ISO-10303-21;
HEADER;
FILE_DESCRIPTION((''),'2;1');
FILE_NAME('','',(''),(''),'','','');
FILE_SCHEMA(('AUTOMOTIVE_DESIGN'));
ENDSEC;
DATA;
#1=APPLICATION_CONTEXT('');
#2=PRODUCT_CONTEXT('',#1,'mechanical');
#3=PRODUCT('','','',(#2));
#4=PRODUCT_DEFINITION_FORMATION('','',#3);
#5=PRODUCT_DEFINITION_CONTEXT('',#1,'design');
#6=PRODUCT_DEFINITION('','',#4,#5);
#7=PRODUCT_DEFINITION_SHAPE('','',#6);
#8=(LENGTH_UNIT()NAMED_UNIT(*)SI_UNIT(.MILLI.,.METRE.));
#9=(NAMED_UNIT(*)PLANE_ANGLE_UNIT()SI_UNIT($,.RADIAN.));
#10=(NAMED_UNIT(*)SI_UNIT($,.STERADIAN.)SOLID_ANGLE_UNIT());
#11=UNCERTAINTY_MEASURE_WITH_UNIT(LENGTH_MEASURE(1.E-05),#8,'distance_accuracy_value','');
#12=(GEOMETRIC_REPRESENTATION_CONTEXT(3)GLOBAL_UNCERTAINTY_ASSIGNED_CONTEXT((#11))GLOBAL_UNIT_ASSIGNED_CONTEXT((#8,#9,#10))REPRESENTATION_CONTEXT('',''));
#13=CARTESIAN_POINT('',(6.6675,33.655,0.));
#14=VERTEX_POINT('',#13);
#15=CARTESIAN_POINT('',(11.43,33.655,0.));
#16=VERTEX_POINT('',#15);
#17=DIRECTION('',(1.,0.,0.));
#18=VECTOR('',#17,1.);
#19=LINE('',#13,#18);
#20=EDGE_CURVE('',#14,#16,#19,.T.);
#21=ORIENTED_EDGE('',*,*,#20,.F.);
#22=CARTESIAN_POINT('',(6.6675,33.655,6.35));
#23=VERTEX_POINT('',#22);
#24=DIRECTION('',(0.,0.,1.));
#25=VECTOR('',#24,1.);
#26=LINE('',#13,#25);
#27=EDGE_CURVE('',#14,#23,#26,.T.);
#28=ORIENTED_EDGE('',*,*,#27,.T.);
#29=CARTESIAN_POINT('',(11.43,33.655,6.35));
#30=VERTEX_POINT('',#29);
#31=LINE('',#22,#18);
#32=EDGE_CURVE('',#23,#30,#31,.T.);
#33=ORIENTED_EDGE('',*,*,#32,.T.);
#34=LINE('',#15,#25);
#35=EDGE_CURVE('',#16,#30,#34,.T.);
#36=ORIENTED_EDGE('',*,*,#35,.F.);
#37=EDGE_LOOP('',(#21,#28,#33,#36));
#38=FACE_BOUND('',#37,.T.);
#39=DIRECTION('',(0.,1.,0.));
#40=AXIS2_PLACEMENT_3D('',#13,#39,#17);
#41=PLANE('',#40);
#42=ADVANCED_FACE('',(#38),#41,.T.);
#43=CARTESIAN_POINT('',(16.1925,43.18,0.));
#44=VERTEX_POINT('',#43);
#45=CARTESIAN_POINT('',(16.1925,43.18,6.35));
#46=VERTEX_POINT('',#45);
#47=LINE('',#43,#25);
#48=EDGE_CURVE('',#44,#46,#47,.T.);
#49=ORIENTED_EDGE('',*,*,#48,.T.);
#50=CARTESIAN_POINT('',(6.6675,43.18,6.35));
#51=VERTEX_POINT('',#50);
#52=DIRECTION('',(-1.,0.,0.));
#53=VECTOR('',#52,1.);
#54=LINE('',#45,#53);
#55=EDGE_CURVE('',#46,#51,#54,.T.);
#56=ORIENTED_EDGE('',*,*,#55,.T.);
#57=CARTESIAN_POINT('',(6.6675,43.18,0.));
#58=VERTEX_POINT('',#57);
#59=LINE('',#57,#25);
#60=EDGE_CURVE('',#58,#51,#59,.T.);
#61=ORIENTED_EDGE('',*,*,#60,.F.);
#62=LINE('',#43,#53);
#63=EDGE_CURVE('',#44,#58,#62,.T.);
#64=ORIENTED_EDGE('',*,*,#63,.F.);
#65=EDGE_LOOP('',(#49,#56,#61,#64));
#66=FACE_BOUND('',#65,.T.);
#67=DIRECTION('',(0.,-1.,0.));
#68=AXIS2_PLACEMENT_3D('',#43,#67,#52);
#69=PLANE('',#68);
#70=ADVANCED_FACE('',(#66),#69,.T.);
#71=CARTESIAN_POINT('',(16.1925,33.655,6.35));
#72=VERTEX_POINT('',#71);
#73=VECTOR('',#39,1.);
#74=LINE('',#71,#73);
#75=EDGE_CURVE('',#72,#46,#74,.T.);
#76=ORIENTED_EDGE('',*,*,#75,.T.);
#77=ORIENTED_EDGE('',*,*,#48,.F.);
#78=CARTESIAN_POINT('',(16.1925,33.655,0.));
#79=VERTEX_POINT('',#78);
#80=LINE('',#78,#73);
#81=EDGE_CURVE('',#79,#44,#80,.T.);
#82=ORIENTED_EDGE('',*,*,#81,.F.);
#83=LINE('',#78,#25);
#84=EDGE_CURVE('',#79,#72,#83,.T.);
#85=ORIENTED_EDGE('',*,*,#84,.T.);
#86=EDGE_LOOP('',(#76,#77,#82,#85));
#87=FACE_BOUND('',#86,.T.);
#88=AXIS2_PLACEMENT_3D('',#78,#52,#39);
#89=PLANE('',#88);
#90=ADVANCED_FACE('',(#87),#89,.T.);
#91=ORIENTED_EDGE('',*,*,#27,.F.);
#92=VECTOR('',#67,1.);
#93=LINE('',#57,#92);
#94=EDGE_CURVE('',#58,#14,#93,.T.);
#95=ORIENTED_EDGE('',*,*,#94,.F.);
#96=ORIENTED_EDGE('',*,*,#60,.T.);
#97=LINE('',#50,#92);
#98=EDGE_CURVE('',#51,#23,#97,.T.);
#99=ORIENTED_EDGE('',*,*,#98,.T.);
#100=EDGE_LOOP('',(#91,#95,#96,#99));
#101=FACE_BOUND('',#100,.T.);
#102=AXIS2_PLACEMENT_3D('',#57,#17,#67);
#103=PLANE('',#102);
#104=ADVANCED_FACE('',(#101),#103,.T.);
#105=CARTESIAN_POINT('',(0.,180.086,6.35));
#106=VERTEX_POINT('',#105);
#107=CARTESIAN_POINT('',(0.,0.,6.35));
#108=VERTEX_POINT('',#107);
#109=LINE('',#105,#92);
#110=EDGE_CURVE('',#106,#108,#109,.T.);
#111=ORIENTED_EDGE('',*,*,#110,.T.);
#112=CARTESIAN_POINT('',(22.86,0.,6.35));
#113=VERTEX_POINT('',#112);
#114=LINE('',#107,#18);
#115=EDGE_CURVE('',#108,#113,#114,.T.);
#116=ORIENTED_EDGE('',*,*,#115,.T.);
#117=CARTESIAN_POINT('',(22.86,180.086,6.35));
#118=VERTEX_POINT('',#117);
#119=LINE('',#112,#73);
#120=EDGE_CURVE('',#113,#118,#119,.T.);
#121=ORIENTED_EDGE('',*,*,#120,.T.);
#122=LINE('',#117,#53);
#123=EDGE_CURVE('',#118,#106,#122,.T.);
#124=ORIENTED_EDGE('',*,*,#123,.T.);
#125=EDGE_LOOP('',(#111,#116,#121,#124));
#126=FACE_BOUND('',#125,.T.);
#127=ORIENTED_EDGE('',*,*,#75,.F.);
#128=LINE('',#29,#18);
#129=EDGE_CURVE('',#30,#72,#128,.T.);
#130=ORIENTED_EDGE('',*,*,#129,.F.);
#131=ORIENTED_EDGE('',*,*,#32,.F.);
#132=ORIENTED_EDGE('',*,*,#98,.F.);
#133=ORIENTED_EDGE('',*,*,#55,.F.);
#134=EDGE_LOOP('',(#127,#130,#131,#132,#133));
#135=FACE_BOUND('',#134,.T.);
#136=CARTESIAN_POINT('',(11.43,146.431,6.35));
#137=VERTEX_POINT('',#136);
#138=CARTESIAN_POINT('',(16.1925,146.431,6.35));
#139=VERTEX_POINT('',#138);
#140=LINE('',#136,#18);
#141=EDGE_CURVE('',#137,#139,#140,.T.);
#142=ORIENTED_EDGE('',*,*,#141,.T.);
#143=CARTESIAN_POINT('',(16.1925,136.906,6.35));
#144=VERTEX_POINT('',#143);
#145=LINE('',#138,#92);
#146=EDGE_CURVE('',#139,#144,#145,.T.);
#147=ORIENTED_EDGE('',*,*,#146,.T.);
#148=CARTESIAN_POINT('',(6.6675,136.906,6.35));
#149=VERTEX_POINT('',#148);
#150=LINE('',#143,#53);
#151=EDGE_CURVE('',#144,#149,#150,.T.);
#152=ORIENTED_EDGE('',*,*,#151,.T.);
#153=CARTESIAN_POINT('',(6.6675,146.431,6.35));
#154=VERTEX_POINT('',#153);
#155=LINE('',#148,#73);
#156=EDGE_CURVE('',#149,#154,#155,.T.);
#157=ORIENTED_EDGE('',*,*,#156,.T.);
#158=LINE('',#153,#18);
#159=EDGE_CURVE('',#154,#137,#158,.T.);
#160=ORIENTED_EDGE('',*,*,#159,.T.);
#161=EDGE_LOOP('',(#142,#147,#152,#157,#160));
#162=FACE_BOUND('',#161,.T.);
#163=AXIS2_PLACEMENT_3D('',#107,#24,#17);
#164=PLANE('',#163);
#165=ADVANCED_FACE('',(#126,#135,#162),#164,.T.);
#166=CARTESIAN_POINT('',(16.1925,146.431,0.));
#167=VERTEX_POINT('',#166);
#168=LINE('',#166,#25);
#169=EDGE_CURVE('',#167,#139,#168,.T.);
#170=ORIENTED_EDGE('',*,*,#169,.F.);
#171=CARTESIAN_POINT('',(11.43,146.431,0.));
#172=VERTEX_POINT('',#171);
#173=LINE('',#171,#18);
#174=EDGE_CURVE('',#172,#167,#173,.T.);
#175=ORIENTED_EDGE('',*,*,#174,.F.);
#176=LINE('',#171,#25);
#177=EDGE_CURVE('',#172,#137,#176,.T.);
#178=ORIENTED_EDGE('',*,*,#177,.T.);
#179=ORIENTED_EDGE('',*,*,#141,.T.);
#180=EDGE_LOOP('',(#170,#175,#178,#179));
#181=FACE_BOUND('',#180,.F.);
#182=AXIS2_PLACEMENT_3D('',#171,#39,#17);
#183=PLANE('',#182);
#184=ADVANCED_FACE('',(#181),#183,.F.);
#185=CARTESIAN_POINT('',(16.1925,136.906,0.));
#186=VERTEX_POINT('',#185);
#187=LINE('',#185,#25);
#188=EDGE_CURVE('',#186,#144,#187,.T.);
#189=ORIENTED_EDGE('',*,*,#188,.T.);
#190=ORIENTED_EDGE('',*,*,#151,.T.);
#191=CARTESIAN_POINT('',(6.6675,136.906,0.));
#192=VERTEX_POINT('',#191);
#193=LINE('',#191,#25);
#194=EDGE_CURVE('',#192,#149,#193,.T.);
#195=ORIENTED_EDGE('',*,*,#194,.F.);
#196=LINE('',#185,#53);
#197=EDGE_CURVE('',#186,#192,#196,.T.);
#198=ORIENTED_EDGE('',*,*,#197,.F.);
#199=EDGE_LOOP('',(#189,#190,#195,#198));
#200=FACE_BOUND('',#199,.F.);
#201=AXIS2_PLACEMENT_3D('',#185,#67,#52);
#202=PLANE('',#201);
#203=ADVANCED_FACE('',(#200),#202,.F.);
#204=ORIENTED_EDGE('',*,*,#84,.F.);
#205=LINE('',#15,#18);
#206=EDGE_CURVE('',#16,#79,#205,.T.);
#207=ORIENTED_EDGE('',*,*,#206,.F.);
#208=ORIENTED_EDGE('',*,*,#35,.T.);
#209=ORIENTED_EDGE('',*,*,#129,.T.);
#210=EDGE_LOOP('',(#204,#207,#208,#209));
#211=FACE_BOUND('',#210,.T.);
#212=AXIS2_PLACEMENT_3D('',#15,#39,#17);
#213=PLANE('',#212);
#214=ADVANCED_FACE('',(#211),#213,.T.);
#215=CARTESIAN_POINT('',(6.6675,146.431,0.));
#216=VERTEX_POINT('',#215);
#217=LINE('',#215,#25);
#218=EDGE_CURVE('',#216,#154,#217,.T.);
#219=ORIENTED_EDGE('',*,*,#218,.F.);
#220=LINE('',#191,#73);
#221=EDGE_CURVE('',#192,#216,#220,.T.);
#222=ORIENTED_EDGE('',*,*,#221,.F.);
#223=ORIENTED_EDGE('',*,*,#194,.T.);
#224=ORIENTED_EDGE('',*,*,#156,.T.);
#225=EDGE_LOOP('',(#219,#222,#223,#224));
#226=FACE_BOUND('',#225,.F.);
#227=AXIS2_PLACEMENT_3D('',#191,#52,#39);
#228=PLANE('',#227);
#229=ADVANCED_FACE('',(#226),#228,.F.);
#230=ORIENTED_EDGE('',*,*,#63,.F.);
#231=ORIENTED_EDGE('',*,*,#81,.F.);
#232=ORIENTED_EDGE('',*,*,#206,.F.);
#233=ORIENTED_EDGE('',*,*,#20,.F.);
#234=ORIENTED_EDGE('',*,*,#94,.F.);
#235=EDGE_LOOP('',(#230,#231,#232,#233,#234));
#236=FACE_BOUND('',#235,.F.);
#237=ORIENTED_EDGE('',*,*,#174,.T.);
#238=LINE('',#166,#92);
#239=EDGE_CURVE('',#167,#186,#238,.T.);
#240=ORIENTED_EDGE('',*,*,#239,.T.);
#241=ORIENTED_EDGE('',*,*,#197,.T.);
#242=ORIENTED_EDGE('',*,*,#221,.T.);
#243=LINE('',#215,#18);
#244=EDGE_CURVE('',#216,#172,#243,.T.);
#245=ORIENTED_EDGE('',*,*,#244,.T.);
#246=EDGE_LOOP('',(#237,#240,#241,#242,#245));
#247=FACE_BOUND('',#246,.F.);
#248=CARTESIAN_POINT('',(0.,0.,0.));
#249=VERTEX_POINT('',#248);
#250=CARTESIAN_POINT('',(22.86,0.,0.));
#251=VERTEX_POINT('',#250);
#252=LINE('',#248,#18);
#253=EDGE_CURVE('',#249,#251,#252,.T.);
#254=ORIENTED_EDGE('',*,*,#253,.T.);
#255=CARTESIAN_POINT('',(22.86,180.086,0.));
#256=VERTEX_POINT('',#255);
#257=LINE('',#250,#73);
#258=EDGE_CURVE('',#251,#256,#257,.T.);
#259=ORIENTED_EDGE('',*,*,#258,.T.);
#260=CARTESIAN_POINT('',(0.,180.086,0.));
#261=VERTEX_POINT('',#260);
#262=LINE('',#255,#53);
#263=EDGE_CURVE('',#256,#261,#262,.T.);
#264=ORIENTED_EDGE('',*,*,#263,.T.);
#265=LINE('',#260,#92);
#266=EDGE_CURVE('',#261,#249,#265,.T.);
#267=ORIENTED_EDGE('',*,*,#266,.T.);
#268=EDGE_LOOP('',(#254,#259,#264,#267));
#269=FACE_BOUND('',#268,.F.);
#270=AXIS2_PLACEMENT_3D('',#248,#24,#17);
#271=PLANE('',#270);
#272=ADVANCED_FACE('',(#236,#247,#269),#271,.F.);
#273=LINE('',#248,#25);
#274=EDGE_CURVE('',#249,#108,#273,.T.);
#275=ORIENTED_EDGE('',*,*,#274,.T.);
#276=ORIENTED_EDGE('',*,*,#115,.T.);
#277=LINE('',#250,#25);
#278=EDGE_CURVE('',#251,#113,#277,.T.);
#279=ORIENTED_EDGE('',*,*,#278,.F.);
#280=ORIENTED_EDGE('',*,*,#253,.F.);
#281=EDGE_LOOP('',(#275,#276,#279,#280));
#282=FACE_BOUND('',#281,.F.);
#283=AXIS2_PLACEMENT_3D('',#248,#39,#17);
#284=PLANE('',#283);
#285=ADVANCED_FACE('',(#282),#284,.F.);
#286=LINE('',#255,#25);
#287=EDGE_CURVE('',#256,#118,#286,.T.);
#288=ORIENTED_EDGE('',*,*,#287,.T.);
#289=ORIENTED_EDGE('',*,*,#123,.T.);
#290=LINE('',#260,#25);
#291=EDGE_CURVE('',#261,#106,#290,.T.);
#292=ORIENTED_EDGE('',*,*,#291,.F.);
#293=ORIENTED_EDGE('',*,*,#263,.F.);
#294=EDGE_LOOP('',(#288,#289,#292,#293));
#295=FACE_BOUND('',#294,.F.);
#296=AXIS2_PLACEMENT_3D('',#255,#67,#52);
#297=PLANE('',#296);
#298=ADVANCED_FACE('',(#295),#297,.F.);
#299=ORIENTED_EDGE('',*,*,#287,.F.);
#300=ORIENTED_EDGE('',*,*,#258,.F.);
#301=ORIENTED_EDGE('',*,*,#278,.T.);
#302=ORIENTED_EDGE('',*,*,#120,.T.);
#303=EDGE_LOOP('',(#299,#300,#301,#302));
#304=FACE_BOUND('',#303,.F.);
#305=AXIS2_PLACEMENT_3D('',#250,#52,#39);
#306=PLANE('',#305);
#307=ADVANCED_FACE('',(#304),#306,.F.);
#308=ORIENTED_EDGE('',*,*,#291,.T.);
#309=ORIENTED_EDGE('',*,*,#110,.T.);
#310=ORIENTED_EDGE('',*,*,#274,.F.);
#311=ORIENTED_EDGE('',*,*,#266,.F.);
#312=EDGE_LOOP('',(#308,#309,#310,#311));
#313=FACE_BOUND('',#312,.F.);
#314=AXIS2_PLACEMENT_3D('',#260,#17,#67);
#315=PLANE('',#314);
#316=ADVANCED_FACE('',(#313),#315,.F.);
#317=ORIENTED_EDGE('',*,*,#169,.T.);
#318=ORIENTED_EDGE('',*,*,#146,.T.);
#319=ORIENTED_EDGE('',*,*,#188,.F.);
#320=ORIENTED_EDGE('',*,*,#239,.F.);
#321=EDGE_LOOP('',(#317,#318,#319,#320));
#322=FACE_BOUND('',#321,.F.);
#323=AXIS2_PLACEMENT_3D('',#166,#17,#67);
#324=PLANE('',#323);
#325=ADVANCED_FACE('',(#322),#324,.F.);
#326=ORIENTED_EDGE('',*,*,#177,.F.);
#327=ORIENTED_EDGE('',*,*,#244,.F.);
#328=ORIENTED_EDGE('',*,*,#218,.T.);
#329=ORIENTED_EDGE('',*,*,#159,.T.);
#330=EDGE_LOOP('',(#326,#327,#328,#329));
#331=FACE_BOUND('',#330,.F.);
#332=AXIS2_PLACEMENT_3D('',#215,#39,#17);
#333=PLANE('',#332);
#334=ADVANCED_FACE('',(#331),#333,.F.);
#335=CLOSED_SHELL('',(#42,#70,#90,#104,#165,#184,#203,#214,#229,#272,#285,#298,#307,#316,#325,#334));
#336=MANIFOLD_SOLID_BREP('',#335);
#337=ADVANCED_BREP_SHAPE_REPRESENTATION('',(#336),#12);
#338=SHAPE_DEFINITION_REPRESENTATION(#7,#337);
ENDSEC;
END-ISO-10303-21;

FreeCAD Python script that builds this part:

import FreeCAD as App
import Part
import Sketcher
from FreeCAD import Vector
Q = App.Units.Quantity


def add_polygon(sketch, points):
    """Adds a closed chain of lines whose ends are joined by coincident constraints."""
    first, n = sketch.GeometryCount, len(points)
    for a, b in zip(points, points[1:] + points[:1]):
        sketch.addGeometry(Part.LineSegment(App.Vector(*a, 0), App.Vector(*b, 0)), False)
    for i in range(n):
        sketch.addConstraint(Sketcher.Constraint("Coincident", first + i, 2, first + (i + 1) % n, 1))

doc = App.newDocument("Part")
body = doc.addObject("PartDesign::Body", "Body")

# Sketch on XY plane
sketch1 = body.newObject("Sketcher::SketchObject", "Sketch")
sketch1.AttachmentSupport = (doc.getObject("XY_Plane"), [""])
sketch1.MapMode = "FlatFace"
add_polygon(sketch1, [(0, 180), (0, 0), (23, 0), (23, 180)])  # lines 0-3
add_polygon(sketch1, [(16, 34), (7, 34), (7, 43), (16, 43)])  # lines 4-7
add_polygon(sketch1, [(7, 146), (16, 146), (16, 137), (7, 137)])  # lines 8-11
sketch1.addConstraint([
    Sketcher.Constraint("Vertical", 0),
    Sketcher.Constraint("Horizontal", 1),
    Sketcher.Constraint("Vertical", 2),
    Sketcher.Constraint("Horizontal", 3),
    Sketcher.Constraint("Horizontal", 4),
    Sketcher.Constraint("Vertical", 5),
    Sketcher.Constraint("Horizontal", 6),
    Sketcher.Constraint("Vertical", 7),
    Sketcher.Constraint("Horizontal", 8),
    Sketcher.Constraint("Vertical", 9),
    Sketcher.Constraint("Horizontal", 10),
    Sketcher.Constraint("Vertical", 11),
    Sketcher.Constraint("Coincident", 0, 2, -1, 1),
    Sketcher.Constraint("Vertical", 7, 2, 8, 2),
    Sketcher.Constraint("Vertical", 5, 2, 10, 2),
    Sketcher.Constraint("Equal", 10, 5),
    Sketcher.Constraint("Equal", 7, 9),
    Sketcher.Constraint("DistanceX", 1, 1, 1, 2, Q("0.9 in")),
    Sketcher.Constraint("DistanceY", 0, 2, 0, 1, Q("7.09 in")),
    Sketcher.Constraint("DistanceX", 4, 2, 4, 1, Q("0.375 in")),
    Sketcher.Constraint("DistanceY", -1, 1, 4, 2, Q("1.325 in")),
    Sketcher.Constraint("DistanceY", 8, 2, 2, 2, Q("1.325 in")),
    Sketcher.Constraint("DistanceX", -1, 1, 4, 2, Q("0.2625 in")),
])
pad1 = body.newObject("PartDesign::Pad", "Pad")
pad1.Profile = sketch1
pad1.Length = Q("0.25 in")

doc.recompute()
